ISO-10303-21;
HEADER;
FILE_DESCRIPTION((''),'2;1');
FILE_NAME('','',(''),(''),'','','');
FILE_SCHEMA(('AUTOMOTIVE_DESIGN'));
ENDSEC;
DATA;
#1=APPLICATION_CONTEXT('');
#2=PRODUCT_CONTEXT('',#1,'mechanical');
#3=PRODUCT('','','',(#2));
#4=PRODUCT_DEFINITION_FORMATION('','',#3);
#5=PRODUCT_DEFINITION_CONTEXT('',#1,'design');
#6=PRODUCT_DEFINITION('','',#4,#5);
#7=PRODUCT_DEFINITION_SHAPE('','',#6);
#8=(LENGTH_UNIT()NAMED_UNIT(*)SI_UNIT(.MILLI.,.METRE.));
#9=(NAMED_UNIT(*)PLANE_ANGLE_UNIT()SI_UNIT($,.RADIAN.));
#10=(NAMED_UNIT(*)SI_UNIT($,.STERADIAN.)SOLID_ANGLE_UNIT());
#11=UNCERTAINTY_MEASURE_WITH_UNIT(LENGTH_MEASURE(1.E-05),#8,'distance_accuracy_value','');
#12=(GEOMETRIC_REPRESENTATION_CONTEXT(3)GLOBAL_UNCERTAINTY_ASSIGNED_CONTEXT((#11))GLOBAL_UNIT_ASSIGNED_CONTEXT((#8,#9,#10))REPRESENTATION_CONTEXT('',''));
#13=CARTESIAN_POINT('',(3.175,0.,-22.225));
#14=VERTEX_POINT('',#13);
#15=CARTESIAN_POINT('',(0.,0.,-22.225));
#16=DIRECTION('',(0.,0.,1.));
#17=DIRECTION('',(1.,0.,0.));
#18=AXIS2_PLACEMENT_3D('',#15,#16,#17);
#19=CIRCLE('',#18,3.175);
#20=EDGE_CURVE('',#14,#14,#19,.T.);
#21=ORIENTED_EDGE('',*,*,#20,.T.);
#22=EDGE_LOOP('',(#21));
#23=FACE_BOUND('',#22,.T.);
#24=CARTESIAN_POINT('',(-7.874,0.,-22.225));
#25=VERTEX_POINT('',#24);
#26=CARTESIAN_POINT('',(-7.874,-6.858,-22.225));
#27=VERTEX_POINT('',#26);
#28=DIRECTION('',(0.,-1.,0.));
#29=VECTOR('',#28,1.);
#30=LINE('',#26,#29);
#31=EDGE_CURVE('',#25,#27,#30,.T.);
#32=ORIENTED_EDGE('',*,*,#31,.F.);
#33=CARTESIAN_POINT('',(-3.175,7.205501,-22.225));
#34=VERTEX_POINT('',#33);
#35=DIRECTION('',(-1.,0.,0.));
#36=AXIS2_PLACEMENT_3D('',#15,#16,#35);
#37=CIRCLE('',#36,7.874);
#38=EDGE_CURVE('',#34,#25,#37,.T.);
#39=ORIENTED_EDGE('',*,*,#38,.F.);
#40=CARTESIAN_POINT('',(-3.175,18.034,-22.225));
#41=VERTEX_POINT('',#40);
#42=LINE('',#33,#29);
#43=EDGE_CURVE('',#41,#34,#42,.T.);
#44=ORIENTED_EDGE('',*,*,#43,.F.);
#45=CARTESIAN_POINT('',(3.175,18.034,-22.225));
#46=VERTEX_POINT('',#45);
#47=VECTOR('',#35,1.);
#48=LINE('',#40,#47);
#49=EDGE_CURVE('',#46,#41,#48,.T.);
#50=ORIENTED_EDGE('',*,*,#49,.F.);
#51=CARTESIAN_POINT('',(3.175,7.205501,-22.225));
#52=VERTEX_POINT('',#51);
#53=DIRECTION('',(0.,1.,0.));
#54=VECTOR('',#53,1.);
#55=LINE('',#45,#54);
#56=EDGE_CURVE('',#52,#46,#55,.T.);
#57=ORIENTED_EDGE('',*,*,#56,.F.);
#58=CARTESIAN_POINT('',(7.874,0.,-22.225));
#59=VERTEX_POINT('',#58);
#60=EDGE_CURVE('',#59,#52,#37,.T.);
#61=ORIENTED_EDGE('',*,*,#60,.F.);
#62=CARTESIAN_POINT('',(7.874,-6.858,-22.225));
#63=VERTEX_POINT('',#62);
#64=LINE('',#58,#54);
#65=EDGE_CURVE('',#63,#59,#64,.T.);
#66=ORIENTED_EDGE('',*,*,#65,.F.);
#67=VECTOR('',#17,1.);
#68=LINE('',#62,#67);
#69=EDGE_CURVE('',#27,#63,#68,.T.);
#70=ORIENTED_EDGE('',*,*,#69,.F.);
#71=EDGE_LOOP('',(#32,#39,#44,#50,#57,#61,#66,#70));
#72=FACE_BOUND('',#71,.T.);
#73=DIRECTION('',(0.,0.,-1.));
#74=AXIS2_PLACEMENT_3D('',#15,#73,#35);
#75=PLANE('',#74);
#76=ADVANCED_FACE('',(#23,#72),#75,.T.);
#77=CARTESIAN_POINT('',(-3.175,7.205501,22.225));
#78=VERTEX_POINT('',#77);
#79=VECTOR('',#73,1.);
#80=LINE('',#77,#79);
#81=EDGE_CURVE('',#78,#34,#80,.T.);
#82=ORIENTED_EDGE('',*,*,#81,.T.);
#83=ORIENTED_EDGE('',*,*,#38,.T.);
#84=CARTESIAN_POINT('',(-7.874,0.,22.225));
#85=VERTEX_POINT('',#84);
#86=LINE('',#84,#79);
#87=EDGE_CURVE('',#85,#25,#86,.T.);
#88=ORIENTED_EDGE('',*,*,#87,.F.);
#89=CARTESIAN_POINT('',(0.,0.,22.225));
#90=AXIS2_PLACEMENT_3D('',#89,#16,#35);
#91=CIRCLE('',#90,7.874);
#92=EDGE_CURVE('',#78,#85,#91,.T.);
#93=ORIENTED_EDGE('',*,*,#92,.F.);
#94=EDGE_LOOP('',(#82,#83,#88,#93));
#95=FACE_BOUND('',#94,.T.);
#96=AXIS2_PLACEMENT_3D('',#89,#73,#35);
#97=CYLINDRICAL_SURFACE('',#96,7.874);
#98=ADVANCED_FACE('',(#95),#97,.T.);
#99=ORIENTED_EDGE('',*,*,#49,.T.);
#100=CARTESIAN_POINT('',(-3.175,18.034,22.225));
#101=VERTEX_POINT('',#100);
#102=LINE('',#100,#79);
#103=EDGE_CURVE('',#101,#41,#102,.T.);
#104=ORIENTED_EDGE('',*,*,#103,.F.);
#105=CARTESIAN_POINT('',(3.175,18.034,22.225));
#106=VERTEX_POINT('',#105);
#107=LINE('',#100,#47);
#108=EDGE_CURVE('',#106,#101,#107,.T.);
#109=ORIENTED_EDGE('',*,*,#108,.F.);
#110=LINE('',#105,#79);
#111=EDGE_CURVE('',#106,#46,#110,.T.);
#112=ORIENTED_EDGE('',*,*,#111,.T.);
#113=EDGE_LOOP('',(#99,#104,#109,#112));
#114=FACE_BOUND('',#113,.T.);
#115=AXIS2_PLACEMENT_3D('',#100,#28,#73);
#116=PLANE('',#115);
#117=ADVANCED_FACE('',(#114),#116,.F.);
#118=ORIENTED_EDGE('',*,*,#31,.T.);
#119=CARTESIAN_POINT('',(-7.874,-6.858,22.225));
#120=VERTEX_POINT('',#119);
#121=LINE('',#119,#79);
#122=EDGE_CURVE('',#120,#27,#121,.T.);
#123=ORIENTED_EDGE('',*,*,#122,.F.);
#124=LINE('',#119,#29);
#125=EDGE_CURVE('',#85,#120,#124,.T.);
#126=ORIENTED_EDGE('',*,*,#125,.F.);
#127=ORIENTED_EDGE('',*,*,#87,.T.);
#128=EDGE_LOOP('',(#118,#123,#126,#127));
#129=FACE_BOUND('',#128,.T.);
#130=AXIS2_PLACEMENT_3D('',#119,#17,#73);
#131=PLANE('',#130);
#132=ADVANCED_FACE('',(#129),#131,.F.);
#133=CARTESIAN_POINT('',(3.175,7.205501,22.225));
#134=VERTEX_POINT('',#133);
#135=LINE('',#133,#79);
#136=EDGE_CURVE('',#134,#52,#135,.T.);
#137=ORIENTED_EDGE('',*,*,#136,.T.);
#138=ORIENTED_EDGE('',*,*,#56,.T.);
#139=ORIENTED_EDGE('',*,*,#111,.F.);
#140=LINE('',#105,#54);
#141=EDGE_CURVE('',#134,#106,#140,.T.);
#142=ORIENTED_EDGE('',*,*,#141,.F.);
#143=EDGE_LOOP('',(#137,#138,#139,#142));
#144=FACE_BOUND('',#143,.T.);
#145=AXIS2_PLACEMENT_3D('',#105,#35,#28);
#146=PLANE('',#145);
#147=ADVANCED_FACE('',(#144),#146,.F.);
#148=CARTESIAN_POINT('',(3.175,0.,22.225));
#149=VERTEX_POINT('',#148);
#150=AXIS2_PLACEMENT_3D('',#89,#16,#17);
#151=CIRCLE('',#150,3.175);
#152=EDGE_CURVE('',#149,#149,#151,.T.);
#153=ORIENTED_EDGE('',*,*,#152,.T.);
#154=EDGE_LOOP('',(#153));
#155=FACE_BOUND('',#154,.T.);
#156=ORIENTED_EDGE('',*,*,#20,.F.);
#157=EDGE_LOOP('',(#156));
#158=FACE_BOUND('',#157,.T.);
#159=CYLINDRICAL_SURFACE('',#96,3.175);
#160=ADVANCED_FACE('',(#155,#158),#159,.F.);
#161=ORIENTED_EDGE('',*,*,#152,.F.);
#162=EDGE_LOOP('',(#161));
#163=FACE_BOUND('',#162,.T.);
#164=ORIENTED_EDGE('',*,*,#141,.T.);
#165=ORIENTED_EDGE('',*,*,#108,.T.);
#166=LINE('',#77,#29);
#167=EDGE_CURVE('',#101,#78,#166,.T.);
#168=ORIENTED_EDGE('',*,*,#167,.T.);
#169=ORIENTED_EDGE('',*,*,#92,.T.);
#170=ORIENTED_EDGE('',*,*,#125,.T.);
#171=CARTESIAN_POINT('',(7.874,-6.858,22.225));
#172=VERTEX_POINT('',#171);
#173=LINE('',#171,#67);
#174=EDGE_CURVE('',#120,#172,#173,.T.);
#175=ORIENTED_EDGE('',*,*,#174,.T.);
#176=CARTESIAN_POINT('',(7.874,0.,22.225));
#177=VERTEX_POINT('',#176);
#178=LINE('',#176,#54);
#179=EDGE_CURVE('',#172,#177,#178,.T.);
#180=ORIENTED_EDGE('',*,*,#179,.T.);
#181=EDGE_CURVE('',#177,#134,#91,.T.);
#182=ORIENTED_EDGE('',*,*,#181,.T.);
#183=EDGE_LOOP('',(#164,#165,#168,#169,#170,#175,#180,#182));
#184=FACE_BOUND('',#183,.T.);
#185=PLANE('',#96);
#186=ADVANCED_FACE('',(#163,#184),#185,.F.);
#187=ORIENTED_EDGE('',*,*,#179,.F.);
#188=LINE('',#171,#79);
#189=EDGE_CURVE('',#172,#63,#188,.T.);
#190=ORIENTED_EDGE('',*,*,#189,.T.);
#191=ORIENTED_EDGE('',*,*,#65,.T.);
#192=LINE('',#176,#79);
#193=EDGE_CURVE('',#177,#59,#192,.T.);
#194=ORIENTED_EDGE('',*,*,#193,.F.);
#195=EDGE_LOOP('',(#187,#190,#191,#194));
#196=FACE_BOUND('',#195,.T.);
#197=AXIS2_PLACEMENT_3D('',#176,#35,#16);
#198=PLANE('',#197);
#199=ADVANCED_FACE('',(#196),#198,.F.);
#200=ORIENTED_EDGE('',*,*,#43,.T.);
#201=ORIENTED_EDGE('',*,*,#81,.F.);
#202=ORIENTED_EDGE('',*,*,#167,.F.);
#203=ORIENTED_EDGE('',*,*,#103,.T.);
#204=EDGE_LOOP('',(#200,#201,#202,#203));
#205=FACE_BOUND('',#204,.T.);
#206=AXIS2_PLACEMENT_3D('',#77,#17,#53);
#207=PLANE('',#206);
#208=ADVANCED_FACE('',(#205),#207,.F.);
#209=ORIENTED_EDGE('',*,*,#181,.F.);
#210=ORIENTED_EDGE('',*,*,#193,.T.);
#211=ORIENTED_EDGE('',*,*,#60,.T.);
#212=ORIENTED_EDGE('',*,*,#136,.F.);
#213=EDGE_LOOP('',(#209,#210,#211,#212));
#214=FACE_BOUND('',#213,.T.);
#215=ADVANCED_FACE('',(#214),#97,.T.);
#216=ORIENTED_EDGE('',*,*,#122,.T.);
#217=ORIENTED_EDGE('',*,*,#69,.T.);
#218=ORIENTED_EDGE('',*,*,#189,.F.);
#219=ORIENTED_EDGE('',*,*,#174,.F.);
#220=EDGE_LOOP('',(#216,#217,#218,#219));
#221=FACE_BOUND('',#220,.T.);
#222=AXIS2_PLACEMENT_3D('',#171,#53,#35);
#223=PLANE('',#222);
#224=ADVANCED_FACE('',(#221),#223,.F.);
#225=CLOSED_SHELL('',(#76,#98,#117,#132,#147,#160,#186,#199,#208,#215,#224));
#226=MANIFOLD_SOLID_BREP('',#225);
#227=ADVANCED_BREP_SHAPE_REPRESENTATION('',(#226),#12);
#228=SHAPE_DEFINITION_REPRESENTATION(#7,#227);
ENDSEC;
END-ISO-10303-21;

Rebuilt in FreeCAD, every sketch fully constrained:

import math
import FreeCAD as App
import Part
import Sketcher
from FreeCAD import Vector
Q = App.Units.Quantity

doc = App.newDocument("Part")
body = doc.addObject("PartDesign::Body", "Body")

# Sketch on XY plane
sketch1 = body.newObject("Sketcher::SketchObject", "Sketch")
sketch1.AttachmentSupport = (doc.getObject("XY_Plane"), [""])
sketch1.MapMode = "FlatFace"
sketch1.addGeometry([
    Part.LineSegment(Vector(-7.9, -6.9, 0), Vector(7.9, -6.9, 0)),  # 0
    Part.LineSegment(Vector(7.9, -6.9, 0), Vector(7.9, 0, 0)),  # 1
    Part.ArcOfCircle(Part.Circle(Vector(0, 0, 0), Vector(0, 0, 1), 7.9), math.radians(0), math.radians(66)),  # 2
    Part.LineSegment(Vector(3.2, 7.2, 0), Vector(3.2, 18, 0)),  # 3
    Part.LineSegment(Vector(3.2, 18, 0), Vector(-3.2, 18, 0)),  # 4
    Part.LineSegment(Vector(-3.2, 18, 0), Vector(-3.2, 7.2, 0)),  # 5
    Part.ArcOfCircle(Part.Circle(Vector(0, 0, 0), Vector(0, 0, 1), 7.9), math.radians(114), math.radians(180)),  # 6
    Part.LineSegment(Vector(-7.9, 0, 0), Vector(-7.9, -6.9, 0)),  # 7
    Part.Circle(Vector(0, 0, 0), Vector(0, 0, 1), 3.2),  # 8
], False)
sketch1.addConstraint([
    Sketcher.Constraint("Coincident", 0, 2, 1, 1),
    Sketcher.Constraint("Tangent", 1, 2, 2, 1),
    Sketcher.Constraint("Coincident", 2, 2, 3, 1),
    Sketcher.Constraint("Coincident", 3, 2, 4, 1),
    Sketcher.Constraint("Coincident", 4, 2, 5, 1),
    Sketcher.Constraint("Coincident", 5, 2, 6, 1),
    Sketcher.Constraint("Tangent", 6, 2, 7, 1),
    Sketcher.Constraint("Coincident", 7, 2, 0, 1),
    Sketcher.Constraint("Horizontal", 0),
    Sketcher.Constraint("Vertical", 1),
    Sketcher.Constraint("Vertical", 3),
    Sketcher.Constraint("Horizontal", 4),
    Sketcher.Constraint("Vertical", 5),
    Sketcher.Constraint("Vertical", 7),
    Sketcher.Constraint("Coincident", 2, 3, -1, 1),
    Sketcher.Constraint("Coincident", 6, 3, -1, 1),
    Sketcher.Constraint("Coincident", 8, 3, -1, 1),
    Sketcher.Constraint("Equal", 2, 6),
    Sketcher.Constraint("Horizontal", 2, 2, 5, 2),
    Sketcher.Constraint("Diameter", 8, Q("0.25 in")),
    Sketcher.Constraint("Radius", 2, Q("0.31 in")),
    Sketcher.Constraint("DistanceX", 4, 2, 4, 1, Q("0.25 in")),
    Sketcher.Constraint("DistanceY", 1, 1, 1, 2, Q("0.27 in")),
    Sketcher.Constraint("DistanceY", -1, 1, 3, 2, Q("0.71 in")),
])
pad1 = body.newObject("PartDesign::Pad", "Pad")
pad1.Profile = sketch1
pad1.Length = Q("1.75 in")
pad1.Midplane = True

doc.recompute()
